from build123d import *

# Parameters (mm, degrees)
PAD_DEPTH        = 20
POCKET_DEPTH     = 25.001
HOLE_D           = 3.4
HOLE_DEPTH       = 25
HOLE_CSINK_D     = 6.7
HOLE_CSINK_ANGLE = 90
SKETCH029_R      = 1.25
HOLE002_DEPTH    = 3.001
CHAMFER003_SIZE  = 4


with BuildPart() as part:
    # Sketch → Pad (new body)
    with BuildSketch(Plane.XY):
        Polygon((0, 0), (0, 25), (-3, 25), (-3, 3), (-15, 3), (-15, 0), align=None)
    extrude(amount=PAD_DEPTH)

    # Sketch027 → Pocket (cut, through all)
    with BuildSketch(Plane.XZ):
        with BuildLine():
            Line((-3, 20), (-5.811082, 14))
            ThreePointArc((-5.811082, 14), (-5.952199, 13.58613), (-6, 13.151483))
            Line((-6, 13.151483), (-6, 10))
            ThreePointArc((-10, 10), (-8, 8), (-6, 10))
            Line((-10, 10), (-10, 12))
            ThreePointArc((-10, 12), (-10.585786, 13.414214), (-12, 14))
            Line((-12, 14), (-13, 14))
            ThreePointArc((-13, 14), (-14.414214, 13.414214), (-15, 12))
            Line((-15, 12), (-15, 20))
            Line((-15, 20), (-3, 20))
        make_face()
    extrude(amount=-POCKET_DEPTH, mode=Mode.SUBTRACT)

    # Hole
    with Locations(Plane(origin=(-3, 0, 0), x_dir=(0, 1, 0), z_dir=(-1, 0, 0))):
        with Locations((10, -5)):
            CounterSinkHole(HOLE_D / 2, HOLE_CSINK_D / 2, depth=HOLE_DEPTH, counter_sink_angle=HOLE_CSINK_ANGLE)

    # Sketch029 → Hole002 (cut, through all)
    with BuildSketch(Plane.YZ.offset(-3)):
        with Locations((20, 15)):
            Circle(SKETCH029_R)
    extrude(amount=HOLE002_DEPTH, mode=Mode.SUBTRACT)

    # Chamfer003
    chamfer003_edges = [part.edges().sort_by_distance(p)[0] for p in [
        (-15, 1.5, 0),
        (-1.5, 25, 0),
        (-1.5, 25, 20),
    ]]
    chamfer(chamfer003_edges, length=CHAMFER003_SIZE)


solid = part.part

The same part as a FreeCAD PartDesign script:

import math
import FreeCAD as App
import Part
import Sketcher


def edges_at(feature, points):
    """Names of the edges that pass closest to the given points."""
    edges = feature.Shape.Edges
    near = lambda p: min(range(len(edges)), key=lambda i: edges[i].distToShape(Part.Vertex(*p))[0])
    return sorted({f"Edge{near(p) + 1}" for p in points})

doc = App.newDocument("Part")
body = doc.addObject("PartDesign::Body", "Body")

# Sketch on XY plane
sketch1 = body.newObject("Sketcher::SketchObject", "Sketch")
sketch1.AttachmentSupport = (doc.getObject("XY_Plane"), [""])
sketch1.MapMode = "FlatFace"
sketch1.addGeometry([
    Part.LineSegment(App.Vector(0, 0, 0), App.Vector(0, 25, 0)),  # 0
    Part.LineSegment(App.Vector(0, 25, 0), App.Vector(-3, 25, 0)),  # 1
    Part.LineSegment(App.Vector(-3, 25, 0), App.Vector(-3, 3, 0)),  # 2
    Part.LineSegment(App.Vector(-3, 3, 0), App.Vector(-15, 3, 0)),  # 3
    Part.LineSegment(App.Vector(-15, 3, 0), App.Vector(-15, 0, 0)),  # 4
    Part.LineSegment(App.Vector(-15, 0, 0), App.Vector(0, 0, 0)),  # 5
], False)
sketch1.addConstraint([
    Sketcher.Constraint("Coincident", 0, 2, 1, 1),
    Sketcher.Constraint("Coincident", 1, 2, 2, 1),
    Sketcher.Constraint("Coincident", 2, 2, 3, 1),
    Sketcher.Constraint("Coincident", 3, 2, 4, 1),
    Sketcher.Constraint("Coincident", 4, 2, 5, 1),
    Sketcher.Constraint("Coincident", 5, 2, 0, 1),
    Sketcher.Constraint("Vertical", 0),
    Sketcher.Constraint("Horizontal", 1),
    Sketcher.Constraint("Vertical", 2),
    Sketcher.Constraint("Horizontal", 3),
    Sketcher.Constraint("Vertical", 4),
    Sketcher.Constraint("Horizontal", 5),
    Sketcher.Constraint("Coincident", 5, 2, -1, 1),
    Sketcher.Constraint("Equal", 1, 4),
    Sketcher.Constraint("DistanceX", 1, 2, 1, 1, 3.0),
    Sketcher.Constraint("DistanceX", 3, 2, 3, 1, 12.0),
    Sketcher.Constraint("DistanceY", 0, 1, 0, 2, 25.0),
])
pad1 = body.newObject("PartDesign::Pad", "Pad")
pad1.Profile = sketch1
pad1.Length = 20

# Sketch on XZ plane
sketch2 = body.newObject("Sketcher::SketchObject", "Sketch001")
sketch2.AttachmentSupport = (doc.getObject("XZ_Plane"), [""])
sketch2.MapMode = "FlatFace"
sketch2.addGeometry([
    Part.LineSegment(App.Vector(-5.811082, 14, 0), App.Vector(-3, 20, 0)),  # 0
    Part.LineSegment(App.Vector(-3, 20, 0), App.Vector(-15, 20, 0)),  # 1
    Part.LineSegment(App.Vector(-15, 20, 0), App.Vector(-15, 12, 0)),  # 2
    Part.ArcOfCircle(Part.Circle(App.Vector(-13.000001, 12.000001, 0), App.Vector(0, 0, 1), 1.999999), math.radians(89.999957), math.radians(180.000043)),  # 3
    Part.LineSegment(App.Vector(-13, 14, 0), App.Vector(-12, 14, 0)),  # 4
    Part.ArcOfCircle(Part.Circle(App.Vector(-11.999999, 12.000001, 0), App.Vector(0, 0, 1), 1.999999), math.radians(-0.000043), math.radians(90.000043)),  # 5
    Part.LineSegment(App.Vector(-10, 12, 0), App.Vector(-10, 10, 0)),  # 6
    Part.ArcOfCircle(Part.Circle(App.Vector(-8, 10, 0), App.Vector(0, 0, 1), 2), math.radians(180), math.radians(360)),  # 7
    Part.LineSegment(App.Vector(-6, 10, 0), App.Vector(-6, 13.151483, 0)),  # 8
    Part.ArcOfCircle(Part.Circle(App.Vector(-3.999994, 13.151481, 0), App.Vector(0, 0, 1), 2.000006), math.radians(154.896284), math.radians(179.999946)),  # 9
], False)
sketch2.addConstraint([
    Sketcher.Constraint("Coincident", 0, 2, 1, 1),
    Sketcher.Constraint("Coincident", 1, 2, 2, 1),
    Sketcher.Constraint("Tangent", 2, 2, 3, 2),
    Sketcher.Constraint("Tangent", 3, 1, 4, 1),
    Sketcher.Constraint("Tangent", 4, 2, 5, 2),
    Sketcher.Constraint("Tangent", 5, 1, 6, 1),
    Sketcher.Constraint("Tangent", 6, 2, 7, 1),
    Sketcher.Constraint("Tangent", 7, 2, 8, 1),
    Sketcher.Constraint("Tangent", 8, 2, 9, 2),
    Sketcher.Constraint("Tangent", 9, 1, 0, 1),
    Sketcher.Constraint("Horizontal", 1),
    Sketcher.Constraint("Vertical", 2),
    Sketcher.Constraint("Horizontal", 4),
    Sketcher.Constraint("Vertical", 6),
    Sketcher.Constraint("Vertical", 8),
    Sketcher.Constraint("Equal", 3, 5),
    Sketcher.Constraint("Equal", 5, 7),
    Sketcher.Constraint("Horizontal", 4, 2, 9, 1),
    Sketcher.Constraint("Radius", 3, 1.999999),
    Sketcher.Constraint("DistanceX", 1, 2, 1, 1, 12.0),
    Sketcher.Constraint("DistanceX", 4, 1, 4, 2, 1.0),
    Sketcher.Constraint("DistanceY", 2, 2, 2, 1, 8.0),
    Sketcher.Constraint("DistanceY", 6, 2, 6, 1, 2.0),
    Sketcher.Constraint("DistanceX", 3, 3, -1, 1, 13.000001),
    Sketcher.Constraint("DistanceY", -1, 1, 3, 3, 12.000001),
    Sketcher.Constraint("Radius", 9, 2.000006),
])
pocket1 = body.newObject("PartDesign::Pocket", "Pocket")
pocket1.Profile = sketch2
pocket1.Type = "ThroughAll"

# Sketch on YZ plane
sketch3 = body.newObject("Sketcher::SketchObject", "Sketch002")
sketch3.AttachmentSupport = (doc.getObject("YZ_Plane"), [""])
sketch3.MapMode = "FlatFace"
sketch3.AttachmentOffset = App.Placement(App.Vector(0, 0, -3), App.Rotation())
sketch3.addGeometry(Part.Circle(App.Vector(10, 5, 0), App.Vector(0, 0, 1), 1.7), False)
sketch3.addConstraint([
    Sketcher.Constraint("Diameter", 0, 3.4),
    Sketcher.Constraint("DistanceX", -1, 1, 0, 3, 10.0),
    Sketcher.Constraint("DistanceY", -1, 1, 0, 3, 5.0),
])
doc.recompute()
hole = body.newObject("PartDesign::Hole", "Hole")
hole.Profile = sketch3
hole.ThreadType = "None"
hole.Diameter = 3.4
hole.DepthType = "Dimension"
hole.Depth = 25
hole.DrillPoint = "Flat"
hole.HoleCutType = "Countersink"
hole.HoleCutDiameter = 6.7
hole.HoleCutCountersinkAngle = 90
hole.Reversed = True

# Sketch on YZ plane
sketch4 = body.newObject("Sketcher::SketchObject", "Sketch003")
sketch4.AttachmentSupport = (doc.getObject("YZ_Plane"), [""])
sketch4.MapMode = "FlatFace"
sketch4.AttachmentOffset = App.Placement(App.Vector(0, 0, -3), App.Rotation())
sketch4.addGeometry(Part.Circle(App.Vector(20, 15, 0), App.Vector(0, 0, 1), 1.25), False)
sketch4.addConstraint([
    Sketcher.Constraint("Diameter", 0, 2.5),
    Sketcher.Constraint("DistanceX", -1, 1, 0, 3, 20.0),
    Sketcher.Constraint("DistanceY", -1, 1, 0, 3, 15.0),
])
pocket2 = body.newObject("PartDesign::Pocket", "Pocket001")
pocket2.Profile = sketch4
pocket2.Type = "ThroughAll"
pocket2.Reversed = True
doc.recompute()

chamfer = body.newObject("PartDesign::Chamfer", "Chamfer")
chamfer.Base = (pocket2, edges_at(pocket2, [(-15, 1.5, 0), (-1.5, 25, 0), (-1.5, 25, 20)]))
chamfer.Size = 4

doc.recompute()
